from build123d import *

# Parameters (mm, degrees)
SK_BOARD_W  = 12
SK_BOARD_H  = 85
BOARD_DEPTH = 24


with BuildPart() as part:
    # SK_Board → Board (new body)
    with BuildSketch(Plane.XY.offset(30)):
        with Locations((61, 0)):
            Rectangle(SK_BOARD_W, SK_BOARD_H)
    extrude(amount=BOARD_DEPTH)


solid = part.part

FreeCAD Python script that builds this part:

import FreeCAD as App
import Part
import Sketcher


def add_polygon(sketch, points):
    """Adds a closed chain of lines whose ends are joined by coincident constraints."""
    first, n = sketch.GeometryCount, len(points)
    for a, b in zip(points, points[1:] + points[:1]):
        sketch.addGeometry(Part.LineSegment(App.Vector(*a, 0), App.Vector(*b, 0)), False)
    for i in range(n):
        sketch.addConstraint(Sketcher.Constraint("Coincident", first + i, 2, first + (i + 1) % n, 1))

doc = App.newDocument("Part")
body = doc.addObject("PartDesign::Body", "Body")

# Sketch on XY plane
sketch1 = body.newObject("Sketcher::SketchObject", "Sketch")
sketch1.AttachmentSupport = (doc.getObject("XY_Plane"), [""])
sketch1.MapMode = "FlatFace"
sketch1.AttachmentOffset = App.Placement(App.Vector(0, 0, 30), App.Rotation())
add_polygon(sketch1, [(55, 42), (55, -42), (67, -42), (67, 42)])  # lines 0-3
sketch1.addConstraint(Sketcher.Constraint("Vertical", 0))
sketch1.addConstraint(Sketcher.Constraint("Horizontal", 1))
sketch1.addConstraint(Sketcher.Constraint("Vertical", 2))
sketch1.addConstraint(Sketcher.Constraint("Horizontal", 3))
sketch1.addConstraint(Sketcher.Constraint("DistanceX", 1, 1, 1, 2, 12.0))
sketch1.addConstraint(Sketcher.Constraint("DistanceY", 0, 2, 0, 1, 85.0))
sketch1.addConstraint(Sketcher.Constraint("DistanceX", -1, 1, 0, 2, 55.0))
sketch1.addConstraint(Sketcher.Constraint("DistanceY", 0, 2, -1, 1, 42.5))
pad1 = body.newObject("PartDesign::Pad", "Pad")
pad1.Profile = sketch1
pad1.Length = 24

doc.recompute()
